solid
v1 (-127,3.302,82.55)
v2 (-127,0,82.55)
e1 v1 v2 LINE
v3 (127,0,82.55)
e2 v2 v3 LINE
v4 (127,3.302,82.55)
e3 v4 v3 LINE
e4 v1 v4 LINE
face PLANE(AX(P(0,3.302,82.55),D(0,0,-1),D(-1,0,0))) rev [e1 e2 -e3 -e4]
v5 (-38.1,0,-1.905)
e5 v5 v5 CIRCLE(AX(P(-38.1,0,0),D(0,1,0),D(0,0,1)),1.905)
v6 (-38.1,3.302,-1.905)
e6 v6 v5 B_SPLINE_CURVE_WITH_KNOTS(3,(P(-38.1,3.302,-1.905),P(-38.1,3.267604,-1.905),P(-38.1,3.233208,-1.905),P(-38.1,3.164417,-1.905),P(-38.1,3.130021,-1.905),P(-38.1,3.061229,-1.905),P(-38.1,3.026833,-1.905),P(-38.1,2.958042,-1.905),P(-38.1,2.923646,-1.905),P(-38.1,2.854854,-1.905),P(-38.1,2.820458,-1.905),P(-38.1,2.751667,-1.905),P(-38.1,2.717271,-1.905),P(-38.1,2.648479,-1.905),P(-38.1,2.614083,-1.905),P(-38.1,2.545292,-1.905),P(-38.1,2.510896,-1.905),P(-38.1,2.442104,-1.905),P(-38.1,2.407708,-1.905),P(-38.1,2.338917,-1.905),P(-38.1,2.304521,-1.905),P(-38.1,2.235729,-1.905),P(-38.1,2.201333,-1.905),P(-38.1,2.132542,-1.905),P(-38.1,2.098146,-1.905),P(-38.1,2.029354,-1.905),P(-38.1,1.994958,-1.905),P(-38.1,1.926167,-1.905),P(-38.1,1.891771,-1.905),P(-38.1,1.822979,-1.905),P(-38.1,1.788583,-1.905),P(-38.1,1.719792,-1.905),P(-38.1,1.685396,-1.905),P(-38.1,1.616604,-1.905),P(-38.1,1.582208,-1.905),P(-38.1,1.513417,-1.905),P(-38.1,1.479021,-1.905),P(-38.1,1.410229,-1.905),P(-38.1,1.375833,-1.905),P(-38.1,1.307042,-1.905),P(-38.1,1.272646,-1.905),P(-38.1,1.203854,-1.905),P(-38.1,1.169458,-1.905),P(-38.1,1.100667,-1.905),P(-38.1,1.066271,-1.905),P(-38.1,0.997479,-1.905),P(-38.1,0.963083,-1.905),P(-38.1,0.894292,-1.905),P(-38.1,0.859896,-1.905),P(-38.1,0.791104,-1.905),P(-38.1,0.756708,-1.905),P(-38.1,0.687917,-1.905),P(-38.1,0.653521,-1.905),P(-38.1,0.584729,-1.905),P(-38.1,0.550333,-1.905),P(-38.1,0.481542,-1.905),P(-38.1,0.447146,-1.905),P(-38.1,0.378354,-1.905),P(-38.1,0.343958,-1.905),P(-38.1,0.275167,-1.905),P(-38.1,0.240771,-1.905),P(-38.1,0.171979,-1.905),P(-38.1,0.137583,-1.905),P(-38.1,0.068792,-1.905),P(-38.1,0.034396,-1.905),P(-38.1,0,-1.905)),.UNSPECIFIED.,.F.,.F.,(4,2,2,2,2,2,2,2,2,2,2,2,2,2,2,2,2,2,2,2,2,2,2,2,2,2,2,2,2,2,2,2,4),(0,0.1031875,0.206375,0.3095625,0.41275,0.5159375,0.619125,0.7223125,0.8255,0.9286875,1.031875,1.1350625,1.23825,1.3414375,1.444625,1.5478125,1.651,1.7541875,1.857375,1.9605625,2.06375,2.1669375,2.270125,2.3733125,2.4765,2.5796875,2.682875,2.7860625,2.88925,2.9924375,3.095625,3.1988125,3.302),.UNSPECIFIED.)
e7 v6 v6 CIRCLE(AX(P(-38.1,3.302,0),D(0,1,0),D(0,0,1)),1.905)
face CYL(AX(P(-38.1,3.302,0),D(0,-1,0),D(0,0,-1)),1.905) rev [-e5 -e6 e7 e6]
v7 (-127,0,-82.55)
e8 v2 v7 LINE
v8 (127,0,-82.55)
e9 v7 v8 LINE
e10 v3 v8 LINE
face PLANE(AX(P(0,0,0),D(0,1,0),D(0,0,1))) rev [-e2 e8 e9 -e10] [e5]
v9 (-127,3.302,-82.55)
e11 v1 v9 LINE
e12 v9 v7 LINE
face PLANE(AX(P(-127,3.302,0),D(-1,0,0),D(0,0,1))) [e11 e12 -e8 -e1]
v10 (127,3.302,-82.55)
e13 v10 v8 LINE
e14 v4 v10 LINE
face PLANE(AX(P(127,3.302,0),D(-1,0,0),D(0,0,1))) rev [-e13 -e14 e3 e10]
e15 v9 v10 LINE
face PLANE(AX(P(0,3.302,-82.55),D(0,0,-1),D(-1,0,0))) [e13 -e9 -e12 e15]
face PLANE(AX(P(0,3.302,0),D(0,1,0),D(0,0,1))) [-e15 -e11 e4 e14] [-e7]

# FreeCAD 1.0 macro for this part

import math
import FreeCAD as App
import Part
import Sketcher
from FreeCAD import Vector
Q = App.Units.Quantity

doc = App.newDocument("Part")
params = doc.addObject("Spreadsheet::Sheet", "Params")
for row, (alias, value) in enumerate([
    ("sketch1_width", "10 in"),
    ("sketch1_height", "6.5 in"),
    ("sketch1_radius", "0.075 in"),
    ("pad1_length", "0.13 in"),
], start=1):
    params.set(f"A{row}", alias)
    params.set(f"B{row}", "=" + value)
    params.setAlias(f"B{row}", alias)

body = doc.addObject("PartDesign::Body", "Body")

# Sketch on XZ plane
sketch1 = body.newObject("Sketcher::SketchObject", "Sketch")
sketch1.AttachmentSupport = (doc.getObject("XZ_Plane"), [""])
sketch1.MapMode = "FlatFace"
sketch1.addGeometry([
    Part.LineSegment(Vector(-127, 82.5, 0), Vector(127, 82.5, 0)),  # 0
    Part.LineSegment(Vector(127, 82.5, 0), Vector(127, -82.5, 0)),  # 1
    Part.LineSegment(Vector(127, -82.5, 0), Vector(-127, -82.5, 0)),  # 2
    Part.LineSegment(Vector(-127, -82.5, 0), Vector(-127, 82.5, 0)),  # 3
    Part.ArcOfCircle(Part.Circle(Vector(-38.1, 0, 0), Vector(0, 0, 1), 1.9), math.radians(-90), math.radians(0)),  # 4
    Part.ArcOfCircle(Part.Circle(Vector(-38.1, 0, 0), Vector(0, 0, 1), 1.9), math.radians(0), math.radians(180)),  # 5
    Part.ArcOfCircle(Part.Circle(Vector(-38.1, 0, 0), Vector(0, 0, 1), 1.9), math.radians(-180), math.radians(-90)),  # 6
], False)
sketch1.addConstraint([
    Sketcher.Constraint("Coincident", 0, 2, 1, 1),
    Sketcher.Constraint("Coincident", 1, 2, 2, 1),
    Sketcher.Constraint("Coincident", 2, 2, 3, 1),
    Sketcher.Constraint("Coincident", 3, 2, 0, 1),
    Sketcher.Constraint("Tangent", 4, 2, 5, 1),
    Sketcher.Constraint("Tangent", 5, 2, 6, 1),
    Sketcher.Constraint("Tangent", 6, 2, 4, 1),
    Sketcher.Constraint("Horizontal", 0),
    Sketcher.Constraint("Vertical", 1),
    Sketcher.Constraint("Horizontal", 2),
    Sketcher.Constraint("Vertical", 3),
    Sketcher.Constraint("Symmetric", 0, 2, 2, 2, -1, 1),
    Sketcher.Constraint("PointOnObject", 4, 3, -1),
    Sketcher.Constraint("PointOnObject", 4, 2, -1),
    Sketcher.Constraint("PointOnObject", 5, 2, -1),
    Sketcher.Constraint("Vertical", 5, 3, 6, 2),
    Sketcher.Constraint("DistanceX", 0, 1, 0, 2, Q("10 in")),
    Sketcher.Constraint("DistanceY", 1, 2, 1, 1, Q("6.5 in")),
    Sketcher.Constraint("Radius", 4, Q("0.075 in")),
    Sketcher.Constraint("DistanceX", 4, 3, -1, 1, Q("1.5 in")),
])
sketch1.setExpression("Constraints[16]", "Params.sketch1_width")
sketch1.setExpression("Constraints[17]", "Params.sketch1_height")
sketch1.setExpression("Constraints[18]", "Params.sketch1_radius")
pad1 = body.newObject("PartDesign::Pad", "Pad")
pad1.Profile = sketch1
pad1.setExpression("Length", "Params.pad1_length")
pad1.Reversed = True

doc.recompute()
